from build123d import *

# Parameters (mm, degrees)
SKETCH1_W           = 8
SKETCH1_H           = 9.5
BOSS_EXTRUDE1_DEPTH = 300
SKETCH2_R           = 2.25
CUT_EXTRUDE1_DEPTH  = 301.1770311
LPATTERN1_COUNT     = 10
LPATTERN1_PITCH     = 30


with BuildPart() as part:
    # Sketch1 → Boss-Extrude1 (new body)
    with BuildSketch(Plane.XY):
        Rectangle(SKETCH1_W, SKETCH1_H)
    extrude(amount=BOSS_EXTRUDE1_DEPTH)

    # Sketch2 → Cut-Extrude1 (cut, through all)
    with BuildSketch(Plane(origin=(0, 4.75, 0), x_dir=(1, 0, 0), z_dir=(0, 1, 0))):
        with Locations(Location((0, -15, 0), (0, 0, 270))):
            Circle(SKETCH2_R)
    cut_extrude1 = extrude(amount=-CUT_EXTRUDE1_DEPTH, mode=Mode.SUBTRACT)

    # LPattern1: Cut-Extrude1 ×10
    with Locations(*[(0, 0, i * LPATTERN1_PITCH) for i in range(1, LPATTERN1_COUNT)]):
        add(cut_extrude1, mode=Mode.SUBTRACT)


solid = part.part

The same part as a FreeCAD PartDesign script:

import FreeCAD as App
import Part
import Sketcher

V = App.Vector

doc = App.newDocument("Part")
body = doc.addObject("PartDesign::Body", "Body")

# Sketch on XY plane
sketch1 = doc.addObject("Sketcher::SketchObject", "Sketch")
body.addObject(sketch1)
sketch1.AttachmentSupport = (doc.XY_Plane, [""])
sketch1.MapMode = "FlatFace"
sketch1.addGeometry(Part.LineSegment(V(-4, 5, 0), V(-4, -5, 0)), False)
sketch1.addGeometry(Part.LineSegment(V(-4, -5, 0), V(4, -5, 0)), False)
sketch1.addGeometry(Part.LineSegment(V(4, -5, 0), V(4, 5, 0)), False)
sketch1.addGeometry(Part.LineSegment(V(4, 5, 0), V(-4, 5, 0)), False)
sketch1.addConstraint(Sketcher.Constraint("Coincident", 0, 2, 1, 1))
sketch1.addConstraint(Sketcher.Constraint("Coincident", 1, 2, 2, 1))
sketch1.addConstraint(Sketcher.Constraint("Coincident", 2, 2, 3, 1))
sketch1.addConstraint(Sketcher.Constraint("Coincident", 3, 2, 0, 1))
sketch1.addConstraint(Sketcher.Constraint("Vertical", 0))
sketch1.addConstraint(Sketcher.Constraint("Horizontal", 1))
sketch1.addConstraint(Sketcher.Constraint("Vertical", 2))
sketch1.addConstraint(Sketcher.Constraint("Horizontal", 3))
sketch1.addConstraint(Sketcher.Constraint("Symmetric", 0, 2, 2, 2, -1, 1))
sketch1.addConstraint(Sketcher.Constraint("DistanceX", 1, 1, 1, 2, 8.0))
sketch1.addConstraint(Sketcher.Constraint("DistanceY", 0, 2, 0, 1, 9.5))
pad1 = doc.addObject("PartDesign::Pad", "Pad")
body.addObject(pad1)
pad1.Profile = sketch1
pad1.Length = 300

# Sketch on XZ plane
sketch2 = doc.addObject("Sketcher::SketchObject", "Sketch001")
body.addObject(sketch2)
sketch2.AttachmentSupport = (doc.XZ_Plane, [""])
sketch2.MapMode = "FlatFace"
sketch2.AttachmentOffset = App.Placement(V(0, 0, -4.75), App.Rotation())
sketch2.addGeometry(Part.Circle(V(0, 15, 0), V(0, 0, 1), 2.2), False)
sketch2.addConstraint(Sketcher.Constraint("PointOnObject", 0, 3, -2))
sketch2.addConstraint(Sketcher.Constraint("Diameter", 0, 4.5))
sketch2.addConstraint(Sketcher.Constraint("DistanceY", -1, 1, 0, 3, 15.0))
pocket1 = doc.addObject("PartDesign::Pocket", "Pocket")
body.addObject(pocket1)
pocket1.Profile = sketch2
pocket1.Type = "ThroughAll"
pocket1.Reversed = True
doc.recompute()

linearpattern = doc.addObject("PartDesign::LinearPattern", "LinearPattern")
body.addObject(linearpattern)
linearpattern.Originals = [pocket1]
linearpattern.Direction = (doc.Z_Axis, [""])
linearpattern.Mode = "offset"
linearpattern.Offset = 30
linearpattern.Occurrences = 10
body.Tip = linearpattern

doc.recompute()
